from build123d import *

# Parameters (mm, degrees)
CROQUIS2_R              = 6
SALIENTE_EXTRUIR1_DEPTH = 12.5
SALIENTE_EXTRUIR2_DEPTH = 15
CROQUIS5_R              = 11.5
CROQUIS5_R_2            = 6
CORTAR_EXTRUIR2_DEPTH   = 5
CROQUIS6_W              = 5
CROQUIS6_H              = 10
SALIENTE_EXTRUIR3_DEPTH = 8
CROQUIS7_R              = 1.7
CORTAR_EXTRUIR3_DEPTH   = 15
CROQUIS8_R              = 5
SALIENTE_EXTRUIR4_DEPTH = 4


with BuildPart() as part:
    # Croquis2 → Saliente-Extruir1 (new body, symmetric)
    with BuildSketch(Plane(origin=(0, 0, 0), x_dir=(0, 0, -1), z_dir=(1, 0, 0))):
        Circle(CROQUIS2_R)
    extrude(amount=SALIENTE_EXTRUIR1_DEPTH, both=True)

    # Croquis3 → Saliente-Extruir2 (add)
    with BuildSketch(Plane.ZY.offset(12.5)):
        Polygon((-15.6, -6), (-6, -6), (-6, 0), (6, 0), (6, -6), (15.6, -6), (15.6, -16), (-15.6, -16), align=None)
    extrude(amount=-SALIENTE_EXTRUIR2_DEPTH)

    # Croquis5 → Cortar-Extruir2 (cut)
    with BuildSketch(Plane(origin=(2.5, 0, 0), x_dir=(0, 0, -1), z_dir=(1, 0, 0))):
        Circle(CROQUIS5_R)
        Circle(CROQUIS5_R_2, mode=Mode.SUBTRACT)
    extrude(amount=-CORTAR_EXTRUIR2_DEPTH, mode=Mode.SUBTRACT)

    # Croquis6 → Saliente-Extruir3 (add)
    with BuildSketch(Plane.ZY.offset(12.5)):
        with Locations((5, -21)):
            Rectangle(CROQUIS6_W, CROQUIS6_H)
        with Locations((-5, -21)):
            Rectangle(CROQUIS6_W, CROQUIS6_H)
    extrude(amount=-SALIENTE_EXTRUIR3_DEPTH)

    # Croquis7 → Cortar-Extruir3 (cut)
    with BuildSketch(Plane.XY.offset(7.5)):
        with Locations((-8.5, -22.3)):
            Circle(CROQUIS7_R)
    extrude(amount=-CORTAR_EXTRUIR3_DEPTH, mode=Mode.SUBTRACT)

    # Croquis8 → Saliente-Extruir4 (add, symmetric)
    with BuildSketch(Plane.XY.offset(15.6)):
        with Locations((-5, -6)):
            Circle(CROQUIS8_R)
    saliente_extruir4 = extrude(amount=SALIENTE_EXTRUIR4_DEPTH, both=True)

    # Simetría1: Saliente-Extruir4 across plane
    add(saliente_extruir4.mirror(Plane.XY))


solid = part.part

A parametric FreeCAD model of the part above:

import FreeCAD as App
import Part
import Sketcher

doc = App.newDocument("Part")
body = doc.addObject("PartDesign::Body", "Body")

# Sketch on YZ plane
sketch1 = doc.addObject("Sketcher::SketchObject", "Sketch")
body.addObject(sketch1)
sketch1.AttachmentSupport = (doc.YZ_Plane, [""])
sketch1.MapMode = "FlatFace"
sketch1.addGeometry(Part.Circle(App.Vector(0, 0, 0), App.Vector(0, 0, 1), 6), False)
sketch1.addConstraint(Sketcher.Constraint("Coincident", 0, 3, -1, 1))
sketch1.addConstraint(Sketcher.Constraint("Diameter", 0, 12.0))
pad1 = doc.addObject("PartDesign::Pad", "Pad")
body.addObject(pad1)
pad1.Profile = sketch1
pad1.Length = 25
pad1.Midplane = True

# Sketch on YZ plane
sketch2 = doc.addObject("Sketcher::SketchObject", "Sketch001")
body.addObject(sketch2)
sketch2.AttachmentSupport = (doc.YZ_Plane, [""])
sketch2.MapMode = "FlatFace"
sketch2.AttachmentOffset = App.Placement(App.Vector(0, 0, -12.5), App.Rotation())
sketch2.addGeometry(Part.LineSegment(App.Vector(-6, -6, 0), App.Vector(-6, -16, 0)), False)
sketch2.addGeometry(Part.LineSegment(App.Vector(-6, -16, 0), App.Vector(-16, -16, 0)), False)
sketch2.addGeometry(Part.LineSegment(App.Vector(-16, -16, 0), App.Vector(-16, 16, 0)), False)
sketch2.addGeometry(Part.LineSegment(App.Vector(-16, 16, 0), App.Vector(-6, 16, 0)), False)
sketch2.addGeometry(Part.LineSegment(App.Vector(-6, 16, 0), App.Vector(-6, 6, 0)), False)
sketch2.addGeometry(Part.LineSegment(App.Vector(-6, 6, 0), App.Vector(0, 6, 0)), False)
sketch2.addGeometry(Part.LineSegment(App.Vector(0, 6, 0), App.Vector(0, -6, 0)), False)
sketch2.addGeometry(Part.LineSegment(App.Vector(0, -6, 0), App.Vector(-6, -6, 0)), False)
sketch2.addConstraint(Sketcher.Constraint("Coincident", 0, 2, 1, 1))
sketch2.addConstraint(Sketcher.Constraint("Coincident", 1, 2, 2, 1))
sketch2.addConstraint(Sketcher.Constraint("Coincident", 2, 2, 3, 1))
sketch2.addConstraint(Sketcher.Constraint("Coincident", 3, 2, 4, 1))
sketch2.addConstraint(Sketcher.Constraint("Coincident", 4, 2, 5, 1))
sketch2.addConstraint(Sketcher.Constraint("Coincident", 5, 2, 6, 1))
sketch2.addConstraint(Sketcher.Constraint("Coincident", 6, 2, 7, 1))
sketch2.addConstraint(Sketcher.Constraint("Coincident", 7, 2, 0, 1))
sketch2.addConstraint(Sketcher.Constraint("Vertical", 0))
sketch2.addConstraint(Sketcher.Constraint("Horizontal", 1))
sketch2.addConstraint(Sketcher.Constraint("Vertical", 2))
sketch2.addConstraint(Sketcher.Constraint("Horizontal", 3))
sketch2.addConstraint(Sketcher.Constraint("Vertical", 4))
sketch2.addConstraint(Sketcher.Constraint("Horizontal", 5))
sketch2.addConstraint(Sketcher.Constraint("Vertical", 6))
sketch2.addConstraint(Sketcher.Constraint("Horizontal", 7))
sketch2.addConstraint(Sketcher.Constraint("Symmetric", 5, 2, 6, 2, -1, 1))
sketch2.addConstraint(Sketcher.Constraint("Symmetric", 0, 2, 3, 2, -1))
sketch2.addConstraint(Sketcher.Constraint("DistanceX", 1, 2, 1, 1, 10.0))
sketch2.addConstraint(Sketcher.Constraint("DistanceX", 5, 1, 5, 2, 6.0))
sketch2.addConstraint(Sketcher.Constraint("DistanceY", 6, 2, 6, 1, 12.0))
sketch2.addConstraint(Sketcher.Constraint("DistanceY", 0, 2, 0, 1, 9.6))
pad2 = doc.addObject("PartDesign::Pad", "Pad001")
body.addObject(pad2)
pad2.Profile = sketch2
pad2.Length = 15

# Sketch on YZ plane
sketch3 = doc.addObject("Sketcher::SketchObject", "Sketch002")
body.addObject(sketch3)
sketch3.AttachmentSupport = (doc.YZ_Plane, [""])
sketch3.MapMode = "FlatFace"
sketch3.AttachmentOffset = App.Placement(App.Vector(0, 0, 2.5), App.Rotation())
sketch3.addGeometry(Part.Circle(App.Vector(0, 0, 0), App.Vector(0, 0, 1), 12), False)
sketch3.addGeometry(Part.Circle(App.Vector(0, 0, 0), App.Vector(0, 0, 1), 6), False)
sketch3.addConstraint(Sketcher.Constraint("Coincident", 0, 3, -1, 1))
sketch3.addConstraint(Sketcher.Constraint("Coincident", 1, 3, -1, 1))
sketch3.addConstraint(Sketcher.Constraint("Diameter", 0, 23.0))
sketch3.addConstraint(Sketcher.Constraint("Diameter", 1, 12.0))
pocket1 = doc.addObject("PartDesign::Pocket", "Pocket")
body.addObject(pocket1)
pocket1.Profile = sketch3
pocket1.Length = 5

# Sketch on YZ plane
sketch4 = doc.addObject("Sketcher::SketchObject", "Sketch003")
body.addObject(sketch4)
sketch4.AttachmentSupport = (doc.YZ_Plane, [""])
sketch4.MapMode = "FlatFace"
sketch4.AttachmentOffset = App.Placement(App.Vector(0, 0, -12.5), App.Rotation())
sketch4.addGeometry(Part.LineSegment(App.Vector(-16, 2, 0), App.Vector(-26, 2, 0)), False)
sketch4.addGeometry(Part.LineSegment(App.Vector(-26, 2, 0), App.Vector(-26, 8, 0)), False)
sketch4.addGeometry(Part.LineSegment(App.Vector(-26, 8, 0), App.Vector(-16, 8, 0)), False)
sketch4.addGeometry(Part.LineSegment(App.Vector(-16, 8, 0), App.Vector(-16, 2, 0)), False)
sketch4.addGeometry(Part.LineSegment(App.Vector(-16, -8, 0), App.Vector(-26, -8, 0)), False)
sketch4.addGeometry(Part.LineSegment(App.Vector(-26, -8, 0), App.Vector(-26, -2, 0)), False)
sketch4.addGeometry(Part.LineSegment(App.Vector(-26, -2, 0), App.Vector(-16, -2, 0)), False)
sketch4.addGeometry(Part.LineSegment(App.Vector(-16, -2, 0), App.Vector(-16, -8, 0)), False)
sketch4.addConstraint(Sketcher.Constraint("Coincident", 0, 2, 1, 1))
sketch4.addConstraint(Sketcher.Constraint("Coincident", 1, 2, 2, 1))
sketch4.addConstraint(Sketcher.Constraint("Coincident", 2, 2, 3, 1))
sketch4.addConstraint(Sketcher.Constraint("Coincident", 3, 2, 0, 1))
sketch4.addConstraint(Sketcher.Constraint("Coincident", 4, 2, 5, 1))
sketch4.addConstraint(Sketcher.Constraint("Coincident", 5, 2, 6, 1))
sketch4.addConstraint(Sketcher.Constraint("Coincident", 6, 2, 7, 1))
sketch4.addConstraint(Sketcher.Constraint("Coincident", 7, 2, 4, 1))
sketch4.addConstraint(Sketcher.Constraint("Horizontal", 0))
sketch4.addConstraint(Sketcher.Constraint("Vertical", 1))
sketch4.addConstraint(Sketcher.Constraint("Horizontal", 2))
sketch4.addConstraint(Sketcher.Constraint("Vertical", 3))
sketch4.addConstraint(Sketcher.Constraint("Horizontal", 4))
sketch4.addConstraint(Sketcher.Constraint("Vertical", 5))
sketch4.addConstraint(Sketcher.Constraint("Horizontal", 6))
sketch4.addConstraint(Sketcher.Constraint("Vertical", 7))
sketch4.addConstraint(Sketcher.Constraint("Symmetric", 1, 2, 4, 2, -1))
sketch4.addConstraint(Sketcher.Constraint("Symmetric", 3, 2, 6, 2, -1))
sketch4.addConstraint(Sketcher.Constraint("DistanceX", 0, 2, 0, 1, 10.0))
sketch4.addConstraint(Sketcher.Constraint("DistanceY", 1, 1, 1, 2, 5.0))
sketch4.addConstraint(Sketcher.Constraint("DistanceX", 0, 2, -1, 1, 26.0))
sketch4.addConstraint(Sketcher.Constraint("DistanceY", 4, 2, 0, 2, 10.0))
pad3 = doc.addObject("PartDesign::Pad", "Pad002")
body.addObject(pad3)
pad3.Profile = sketch4
pad3.Length = 8

# Sketch on XY plane
sketch5 = doc.addObject("Sketcher::SketchObject", "Sketch004")
body.addObject(sketch5)
sketch5.AttachmentSupport = (doc.XY_Plane, [""])
sketch5.MapMode = "FlatFace"
sketch5.AttachmentOffset = App.Placement(App.Vector(0, 0, 7.5), App.Rotation())
sketch5.addGeometry(Part.Circle(App.Vector(-8.5, -22.3, 0), App.Vector(0, 0, 1), 1.7), False)
sketch5.addConstraint(Sketcher.Constraint("Diameter", 0, 3.4))
sketch5.addConstraint(Sketcher.Constraint("DistanceX", 0, 3, -1, 1, 8.5))
sketch5.addConstraint(Sketcher.Constraint("DistanceY", 0, 3, -1, 1, 22.3))
pocket2 = doc.addObject("PartDesign::Pocket", "Pocket001")
body.addObject(pocket2)
pocket2.Profile = sketch5
pocket2.Length = 15

# Sketch on XY plane
sketch6 = doc.addObject("Sketcher::SketchObject", "Sketch005")
body.addObject(sketch6)
sketch6.AttachmentSupport = (doc.XY_Plane, [""])
sketch6.MapMode = "FlatFace"
sketch6.AttachmentOffset = App.Placement(App.Vector(0, 0, 15.6), App.Rotation())
sketch6.addGeometry(Part.Circle(App.Vector(-5, -6, 0), App.Vector(0, 0, 1), 5), False)
sketch6.addConstraint(Sketcher.Constraint("Diameter", 0, 10.0))
sketch6.addConstraint(Sketcher.Constraint("DistanceX", 0, 3, -1, 1, 5.0))
sketch6.addConstraint(Sketcher.Constraint("DistanceY", 0, 3, -1, 1, 6.0))
pad4 = doc.addObject("PartDesign::Pad", "Pad003")
body.addObject(pad4)
pad4.Profile = sketch6
pad4.Length = 8
pad4.Midplane = True
doc.recompute()

mirrored = doc.addObject("PartDesign::Mirrored", "Mirrored")
body.addObject(mirrored)
mirrored.Originals = [pad4]
mirrored.MirrorPlane = (doc.XY_Plane, [""])
body.Tip = mirrored

doc.recompute()
